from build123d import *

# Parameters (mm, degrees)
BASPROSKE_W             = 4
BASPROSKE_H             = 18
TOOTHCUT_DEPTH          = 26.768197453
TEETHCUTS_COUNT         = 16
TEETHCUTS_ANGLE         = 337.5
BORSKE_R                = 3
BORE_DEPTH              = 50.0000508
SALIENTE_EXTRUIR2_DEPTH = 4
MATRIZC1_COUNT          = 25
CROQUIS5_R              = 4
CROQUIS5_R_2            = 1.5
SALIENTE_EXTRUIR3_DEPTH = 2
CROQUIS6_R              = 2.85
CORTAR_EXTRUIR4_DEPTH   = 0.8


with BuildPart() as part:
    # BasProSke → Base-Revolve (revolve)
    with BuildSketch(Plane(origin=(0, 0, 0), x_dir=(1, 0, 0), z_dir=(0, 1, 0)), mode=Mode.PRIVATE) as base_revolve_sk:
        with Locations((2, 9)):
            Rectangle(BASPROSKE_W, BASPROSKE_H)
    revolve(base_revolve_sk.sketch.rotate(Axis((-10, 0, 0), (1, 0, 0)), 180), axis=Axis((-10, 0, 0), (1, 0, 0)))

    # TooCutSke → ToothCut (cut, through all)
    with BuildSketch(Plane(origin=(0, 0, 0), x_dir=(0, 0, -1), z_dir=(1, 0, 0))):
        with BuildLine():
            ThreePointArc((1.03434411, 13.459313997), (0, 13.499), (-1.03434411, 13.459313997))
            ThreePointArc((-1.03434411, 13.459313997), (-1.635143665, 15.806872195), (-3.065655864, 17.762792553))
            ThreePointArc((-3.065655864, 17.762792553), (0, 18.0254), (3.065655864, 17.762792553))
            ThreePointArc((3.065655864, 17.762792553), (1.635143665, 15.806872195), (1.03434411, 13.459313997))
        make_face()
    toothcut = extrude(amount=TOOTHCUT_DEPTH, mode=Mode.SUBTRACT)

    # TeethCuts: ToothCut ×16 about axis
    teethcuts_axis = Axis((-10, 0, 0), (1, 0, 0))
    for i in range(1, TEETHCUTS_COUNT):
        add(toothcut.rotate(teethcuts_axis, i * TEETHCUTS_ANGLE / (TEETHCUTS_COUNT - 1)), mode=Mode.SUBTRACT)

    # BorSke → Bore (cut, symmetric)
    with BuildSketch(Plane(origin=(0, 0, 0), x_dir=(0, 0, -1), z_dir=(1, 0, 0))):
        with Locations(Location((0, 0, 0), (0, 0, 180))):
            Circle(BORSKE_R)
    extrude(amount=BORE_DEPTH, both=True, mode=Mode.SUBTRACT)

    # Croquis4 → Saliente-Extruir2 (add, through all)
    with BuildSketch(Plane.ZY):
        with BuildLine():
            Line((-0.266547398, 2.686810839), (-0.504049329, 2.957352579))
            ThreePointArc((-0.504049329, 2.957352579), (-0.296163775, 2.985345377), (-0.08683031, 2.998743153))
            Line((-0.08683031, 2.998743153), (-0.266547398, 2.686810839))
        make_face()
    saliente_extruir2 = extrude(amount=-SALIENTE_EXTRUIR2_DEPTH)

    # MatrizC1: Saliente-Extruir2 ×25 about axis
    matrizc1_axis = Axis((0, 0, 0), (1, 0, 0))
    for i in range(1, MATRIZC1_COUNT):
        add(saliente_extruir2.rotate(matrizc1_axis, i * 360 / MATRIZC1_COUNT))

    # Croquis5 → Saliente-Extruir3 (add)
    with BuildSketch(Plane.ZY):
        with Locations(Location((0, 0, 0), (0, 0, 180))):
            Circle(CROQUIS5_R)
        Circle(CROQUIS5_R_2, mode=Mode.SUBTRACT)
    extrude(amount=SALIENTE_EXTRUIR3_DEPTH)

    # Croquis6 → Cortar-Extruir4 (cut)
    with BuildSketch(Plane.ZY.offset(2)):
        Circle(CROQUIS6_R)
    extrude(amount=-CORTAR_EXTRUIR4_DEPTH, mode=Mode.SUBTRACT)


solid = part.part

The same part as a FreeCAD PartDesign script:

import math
import FreeCAD as App
import Part
import Sketcher

V = App.Vector


def add_polygon(sketch, points):
    """Adds a closed chain of lines whose ends are joined by coincident constraints."""
    first, n = sketch.GeometryCount, len(points)
    for a, b in zip(points, points[1:] + points[:1]):
        sketch.addGeometry(Part.LineSegment(App.Vector(*a, 0), App.Vector(*b, 0)), False)
    for i in range(n):
        sketch.addConstraint(Sketcher.Constraint("Coincident", first + i, 2, first + (i + 1) % n, 1))

doc = App.newDocument("Part")
body = doc.addObject("PartDesign::Body", "Body")

# Sketch on XZ plane
sketch1 = doc.addObject("Sketcher::SketchObject", "Sketch")
body.addObject(sketch1)
sketch1.AttachmentSupport = (doc.XZ_Plane, [""])
sketch1.MapMode = "FlatFace"
add_polygon(sketch1, [(0, -18), (0, 0), (4, 0), (4, -18)])  # lines 0-3
sketch1.addConstraint(Sketcher.Constraint("Vertical", 0))
sketch1.addConstraint(Sketcher.Constraint("Horizontal", 1))
sketch1.addConstraint(Sketcher.Constraint("Vertical", 2))
sketch1.addConstraint(Sketcher.Constraint("Horizontal", 3))
sketch1.addConstraint(Sketcher.Constraint("Coincident", 0, 2, -1, 1))
sketch1.addConstraint(Sketcher.Constraint("DistanceX", 1, 1, 1, 2, 4.0))
sketch1.addConstraint(Sketcher.Constraint("DistanceY", 0, 1, 0, 2, 18.0))
revolution = doc.addObject("PartDesign::Revolution", "Revolution")
body.addObject(revolution)
revolution.Profile = sketch1
revolution.ReferenceAxis = (sketch1, ["H_Axis"])
revolution.Angle = 360

# Sketch on YZ plane
sketch2 = doc.addObject("Sketcher::SketchObject", "Sketch001")
body.addObject(sketch2)
sketch2.AttachmentSupport = (doc.YZ_Plane, [""])
sketch2.MapMode = "FlatFace"
sketch2.addGeometry(Part.ArcOfCircle(Part.Circle(V(0, 0, 0), V(0, 0, 1), 13.499), math.radians(-4.394525), math.radians(4.394525)), False)
sketch2.addGeometry(Part.ArcOfCircle(Part.Circle(V(13.075007, -7.422795, 0), V(0, 0, 1), 6.4), math.radians(42.906426), math.radians(86.557431)), False)
sketch2.addGeometry(Part.ArcOfCircle(Part.Circle(V(0, 0, 0), V(0, 0, 1), 18.0254), math.radians(-9.792134), math.radians(9.792134)), False)
sketch2.addGeometry(Part.ArcOfCircle(Part.Circle(V(13.075007, 7.422795, 0), V(0, 0, 1), 6.4), math.radians(-86.557431), math.radians(-42.906426)), False)
sketch2.addConstraint(Sketcher.Constraint("Coincident", 0, 1, 1, 2))
sketch2.addConstraint(Sketcher.Constraint("Coincident", 1, 1, 2, 1))
sketch2.addConstraint(Sketcher.Constraint("Coincident", 2, 2, 3, 2))
sketch2.addConstraint(Sketcher.Constraint("Coincident", 3, 1, 0, 2))
sketch2.addConstraint(Sketcher.Constraint("Coincident", 0, 3, -1, 1))
sketch2.addConstraint(Sketcher.Constraint("Coincident", 2, 3, -1, 1))
sketch2.addConstraint(Sketcher.Constraint("Equal", 1, 3))
sketch2.addConstraint(Sketcher.Constraint("Symmetric", 1, 3, 3, 3, -1))
sketch2.addConstraint(Sketcher.Constraint("Radius", 1, 6.4))
sketch2.addConstraint(Sketcher.Constraint("Radius", 0, 13.499))
sketch2.addConstraint(Sketcher.Constraint("Radius", 2, 18.0254))
sketch2.addConstraint(Sketcher.Constraint("DistanceY", 0, 1, 2, 2, 4.1))
sketch2.addConstraint(Sketcher.Constraint("DistanceY", 1, 3, 3, 3, 14.84559))
pocket1 = doc.addObject("PartDesign::Pocket", "Pocket")
body.addObject(pocket1)
pocket1.Profile = sketch2
pocket1.Type = "ThroughAll"
pocket1.Reversed = True
doc.recompute()

polarpattern = doc.addObject("PartDesign::PolarPattern", "PolarPattern")
body.addObject(polarpattern)
polarpattern.Originals = [pocket1]
polarpattern.Axis = (doc.X_Axis, [""])
polarpattern.Angle = 360
polarpattern.Occurrences = 16
body.Tip = polarpattern

# Sketch on YZ plane
sketch3 = doc.addObject("Sketcher::SketchObject", "Sketch002")
body.addObject(sketch3)
sketch3.AttachmentSupport = (doc.YZ_Plane, [""])
sketch3.MapMode = "FlatFace"
sketch3.addGeometry(Part.Circle(V(0, 0, 0), V(0, 0, 1), 3), False)
sketch3.addConstraint(Sketcher.Constraint("Coincident", 0, 3, -1, 1))
sketch3.addConstraint(Sketcher.Constraint("Diameter", 0, 6.0))
pocket2 = doc.addObject("PartDesign::Pocket", "Pocket001")
body.addObject(pocket2)
pocket2.Profile = sketch3
pocket2.Length = 100.000102
pocket2.Midplane = True

# Sketch on YZ plane
sketch4 = doc.addObject("Sketcher::SketchObject", "Sketch003")
body.addObject(sketch4)
sketch4.AttachmentSupport = (doc.YZ_Plane, [""])
sketch4.MapMode = "FlatFace"
sketch4.addGeometry(Part.LineSegment(V(2.957353, -0.504049, 0), V(2.686811, -0.266547, 0)), False)
sketch4.addGeometry(Part.LineSegment(V(2.686811, -0.266547, 0), V(2.998743, -0.08683, 0)), False)
sketch4.addGeometry(Part.ArcOfCircle(Part.Circle(V(0, 0, 0), V(0, 0, 1), 3), math.radians(-9.672511), math.radians(-1.658568)), False)
sketch4.addConstraint(Sketcher.Constraint("Coincident", 0, 2, 1, 1))
sketch4.addConstraint(Sketcher.Constraint("Coincident", 1, 2, 2, 2))
sketch4.addConstraint(Sketcher.Constraint("Coincident", 2, 1, 0, 1))
sketch4.addConstraint(Sketcher.Constraint("Coincident", 2, 3, -1, 1))
sketch4.addConstraint(Sketcher.Constraint("Equal", 0, 1))
sketch4.addConstraint(Sketcher.Constraint("Radius", 2, 3.0))
sketch4.addConstraint(Sketcher.Constraint("Distance", 0, 0.36))
sketch4.addConstraint(Sketcher.Constraint("DistanceY", 2, 1, 0, 2, 0.237502))
sketch4.addConstraint(Sketcher.Constraint("DistanceX", -1, 1, 0, 2, 2.686811))
pad1 = doc.addObject("PartDesign::Pad", "Pad")
body.addObject(pad1)
pad1.Profile = sketch4
pad1.Length = 4
doc.recompute()

polarpattern2 = doc.addObject("PartDesign::PolarPattern", "PolarPattern001")
body.addObject(polarpattern2)
polarpattern2.Originals = [pad1]
polarpattern2.Axis = (doc.X_Axis, [""])
polarpattern2.Angle = 360
polarpattern2.Occurrences = 25
body.Tip = polarpattern2

# Sketch on YZ plane
sketch5 = doc.addObject("Sketcher::SketchObject", "Sketch004")
body.addObject(sketch5)
sketch5.AttachmentSupport = (doc.YZ_Plane, [""])
sketch5.MapMode = "FlatFace"
sketch5.addGeometry(Part.Circle(V(0, 0, 0), V(0, 0, 1), 4), False)
sketch5.addGeometry(Part.Circle(V(0, 0, 0), V(0, 0, 1), 1.5), False)
sketch5.addConstraint(Sketcher.Constraint("Coincident", 0, 3, -1, 1))
sketch5.addConstraint(Sketcher.Constraint("Coincident", 1, 3, -1, 1))
sketch5.addConstraint(Sketcher.Constraint("Diameter", 0, 8.0))
sketch5.addConstraint(Sketcher.Constraint("Diameter", 1, 3.0))
pad2 = doc.addObject("PartDesign::Pad", "Pad001")
body.addObject(pad2)
pad2.Profile = sketch5
pad2.Length = 2
pad2.Reversed = True

# Sketch on YZ plane
sketch6 = doc.addObject("Sketcher::SketchObject", "Sketch005")
body.addObject(sketch6)
sketch6.AttachmentSupport = (doc.YZ_Plane, [""])
sketch6.MapMode = "FlatFace"
sketch6.AttachmentOffset = App.Placement(V(0, 0, -2), App.Rotation())
sketch6.addGeometry(Part.Circle(V(0, 0, 0), V(0, 0, 1), 2.85), False)
sketch6.addConstraint(Sketcher.Constraint("Coincident", 0, 3, -1, 1))
sketch6.addConstraint(Sketcher.Constraint("Diameter", 0, 5.7))
pocket3 = doc.addObject("PartDesign::Pocket", "Pocket002")
body.addObject(pocket3)
pocket3.Profile = sketch6
pocket3.Length = 0.8
pocket3.Reversed = True

doc.recompute()
